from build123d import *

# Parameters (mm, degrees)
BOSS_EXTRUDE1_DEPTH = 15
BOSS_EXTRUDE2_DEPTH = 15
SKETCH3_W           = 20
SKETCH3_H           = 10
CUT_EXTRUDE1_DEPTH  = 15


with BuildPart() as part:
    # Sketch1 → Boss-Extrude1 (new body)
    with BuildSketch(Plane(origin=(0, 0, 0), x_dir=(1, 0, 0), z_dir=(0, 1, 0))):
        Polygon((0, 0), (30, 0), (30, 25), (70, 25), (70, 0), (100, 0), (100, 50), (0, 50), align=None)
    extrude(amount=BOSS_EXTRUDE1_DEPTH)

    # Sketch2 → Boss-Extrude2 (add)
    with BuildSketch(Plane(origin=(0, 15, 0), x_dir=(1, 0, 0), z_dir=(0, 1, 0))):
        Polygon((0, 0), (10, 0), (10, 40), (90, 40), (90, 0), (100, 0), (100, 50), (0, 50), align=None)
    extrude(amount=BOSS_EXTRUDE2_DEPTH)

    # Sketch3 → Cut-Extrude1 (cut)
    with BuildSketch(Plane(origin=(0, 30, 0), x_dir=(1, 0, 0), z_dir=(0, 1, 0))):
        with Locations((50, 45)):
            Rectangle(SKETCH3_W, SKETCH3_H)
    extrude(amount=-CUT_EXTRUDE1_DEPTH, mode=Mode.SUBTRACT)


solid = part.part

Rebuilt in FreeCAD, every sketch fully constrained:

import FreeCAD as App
import Part
import Sketcher
from FreeCAD import Vector
Q = App.Units.Quantity


def add_polygon(sketch, points):
    """Adds a closed chain of lines whose ends are joined by coincident constraints."""
    first, n = sketch.GeometryCount, len(points)
    for a, b in zip(points, points[1:] + points[:1]):
        sketch.addGeometry(Part.LineSegment(App.Vector(*a, 0), App.Vector(*b, 0)), False)
    for i in range(n):
        sketch.addConstraint(Sketcher.Constraint("Coincident", first + i, 2, first + (i + 1) % n, 1))

doc = App.newDocument("Part")
body = doc.addObject("PartDesign::Body", "Body")

sketch1 = doc.addObject("Sketcher::SketchObject", "Sketch")
body.addObject(sketch1)
sketch1.AttachmentSupport = (doc.XZ_Plane, [""])
sketch1.MapMode = "FlatFace"
add_polygon(sketch1, [(0, 0), (30, 0), (30, -25), (70, -25), (70, 0), (100, 0), (100, -50), (0, -50)])
sketch1.addConstraint(Sketcher.Constraint("Horizontal", 0))
sketch1.addConstraint(Sketcher.Constraint("Vertical", 1))
sketch1.addConstraint(Sketcher.Constraint("Horizontal", 2))
sketch1.addConstraint(Sketcher.Constraint("Vertical", 3))
sketch1.addConstraint(Sketcher.Constraint("Horizontal", 4))
sketch1.addConstraint(Sketcher.Constraint("Vertical", 5))
sketch1.addConstraint(Sketcher.Constraint("Horizontal", 6))
sketch1.addConstraint(Sketcher.Constraint("Vertical", 7))
sketch1.addConstraint(Sketcher.Constraint("Coincident", 7, 2, -1, 1))
sketch1.addConstraint(Sketcher.Constraint("PointOnObject", 3, 2, -1))
sketch1.addConstraint(Sketcher.Constraint("Equal", 0, 4))
sketch1.addConstraint(Sketcher.Constraint("DistanceX", 0, 1, 0, 2, Q("30 mm")))
sketch1.addConstraint(Sketcher.Constraint("DistanceX", 2, 1, 2, 2, Q("40 mm")))
sketch1.addConstraint(Sketcher.Constraint("DistanceY", 1, 2, 1, 1, Q("25 mm")))
sketch1.addConstraint(Sketcher.Constraint("DistanceY", 5, 2, 5, 1, Q("50 mm")))
pad1 = doc.addObject("PartDesign::Pad", "Pad")
body.addObject(pad1)
pad1.Profile = sketch1
pad1.Length = 15
pad1.Reversed = True

sketch2 = doc.addObject("Sketcher::SketchObject", "Sketch001")
body.addObject(sketch2)
sketch2.AttachmentSupport = (doc.XZ_Plane, [""])
sketch2.MapMode = "FlatFace"
sketch2.AttachmentOffset = App.Placement(Vector(0, 0, -15), App.Rotation())
add_polygon(sketch2, [(0, 0), (10, 0), (10, -40), (90, -40), (90, 0), (100, 0), (100, -50), (0, -50)])
sketch2.addConstraint(Sketcher.Constraint("Horizontal", 0))
sketch2.addConstraint(Sketcher.Constraint("Vertical", 1))
sketch2.addConstraint(Sketcher.Constraint("Horizontal", 2))
sketch2.addConstraint(Sketcher.Constraint("Vertical", 3))
sketch2.addConstraint(Sketcher.Constraint("Horizontal", 4))
sketch2.addConstraint(Sketcher.Constraint("Vertical", 5))
sketch2.addConstraint(Sketcher.Constraint("Horizontal", 6))
sketch2.addConstraint(Sketcher.Constraint("Vertical", 7))
sketch2.addConstraint(Sketcher.Constraint("Coincident", 7, 2, -1, 1))
sketch2.addConstraint(Sketcher.Constraint("PointOnObject", 3, 2, -1))
sketch2.addConstraint(Sketcher.Constraint("Equal", 0, 4))
sketch2.addConstraint(Sketcher.Constraint("DistanceX", 0, 1, 0, 2, Q("10 mm")))
sketch2.addConstraint(Sketcher.Constraint("DistanceX", 2, 1, 2, 2, Q("80 mm")))
sketch2.addConstraint(Sketcher.Constraint("DistanceY", 1, 2, 1, 1, Q("40 mm")))
sketch2.addConstraint(Sketcher.Constraint("DistanceY", 5, 2, 5, 1, Q("50 mm")))
pad2 = doc.addObject("PartDesign::Pad", "Pad001")
body.addObject(pad2)
pad2.Profile = sketch2
pad2.Length = 15
pad2.Reversed = True

sketch3 = doc.addObject("Sketcher::SketchObject", "Sketch002")
body.addObject(sketch3)
sketch3.AttachmentSupport = (doc.XZ_Plane, [""])
sketch3.MapMode = "FlatFace"
sketch3.AttachmentOffset = App.Placement(Vector(0, 0, -30), App.Rotation())
add_polygon(sketch3, [(40, -50), (40, -40), (60, -40), (60, -50)])
sketch3.addConstraint(Sketcher.Constraint("Vertical", 0))
sketch3.addConstraint(Sketcher.Constraint("Horizontal", 1))
sketch3.addConstraint(Sketcher.Constraint("Vertical", 2))
sketch3.addConstraint(Sketcher.Constraint("Horizontal", 3))
sketch3.addConstraint(Sketcher.Constraint("DistanceX", 1, 1, 1, 2, Q("20 mm")))
sketch3.addConstraint(Sketcher.Constraint("DistanceY", 0, 1, 0, 2, Q("10 mm")))
sketch3.addConstraint(Sketcher.Constraint("DistanceX", -1, 1, 0, 2, Q("40 mm")))
sketch3.addConstraint(Sketcher.Constraint("DistanceY", 0, 2, -1, 1, Q("40 mm")))
pocket1 = doc.addObject("PartDesign::Pocket", "Pocket")
body.addObject(pocket1)
pocket1.Profile = sketch3
pocket1.Length = 15
pocket1.Reversed = True

doc.recompute()
